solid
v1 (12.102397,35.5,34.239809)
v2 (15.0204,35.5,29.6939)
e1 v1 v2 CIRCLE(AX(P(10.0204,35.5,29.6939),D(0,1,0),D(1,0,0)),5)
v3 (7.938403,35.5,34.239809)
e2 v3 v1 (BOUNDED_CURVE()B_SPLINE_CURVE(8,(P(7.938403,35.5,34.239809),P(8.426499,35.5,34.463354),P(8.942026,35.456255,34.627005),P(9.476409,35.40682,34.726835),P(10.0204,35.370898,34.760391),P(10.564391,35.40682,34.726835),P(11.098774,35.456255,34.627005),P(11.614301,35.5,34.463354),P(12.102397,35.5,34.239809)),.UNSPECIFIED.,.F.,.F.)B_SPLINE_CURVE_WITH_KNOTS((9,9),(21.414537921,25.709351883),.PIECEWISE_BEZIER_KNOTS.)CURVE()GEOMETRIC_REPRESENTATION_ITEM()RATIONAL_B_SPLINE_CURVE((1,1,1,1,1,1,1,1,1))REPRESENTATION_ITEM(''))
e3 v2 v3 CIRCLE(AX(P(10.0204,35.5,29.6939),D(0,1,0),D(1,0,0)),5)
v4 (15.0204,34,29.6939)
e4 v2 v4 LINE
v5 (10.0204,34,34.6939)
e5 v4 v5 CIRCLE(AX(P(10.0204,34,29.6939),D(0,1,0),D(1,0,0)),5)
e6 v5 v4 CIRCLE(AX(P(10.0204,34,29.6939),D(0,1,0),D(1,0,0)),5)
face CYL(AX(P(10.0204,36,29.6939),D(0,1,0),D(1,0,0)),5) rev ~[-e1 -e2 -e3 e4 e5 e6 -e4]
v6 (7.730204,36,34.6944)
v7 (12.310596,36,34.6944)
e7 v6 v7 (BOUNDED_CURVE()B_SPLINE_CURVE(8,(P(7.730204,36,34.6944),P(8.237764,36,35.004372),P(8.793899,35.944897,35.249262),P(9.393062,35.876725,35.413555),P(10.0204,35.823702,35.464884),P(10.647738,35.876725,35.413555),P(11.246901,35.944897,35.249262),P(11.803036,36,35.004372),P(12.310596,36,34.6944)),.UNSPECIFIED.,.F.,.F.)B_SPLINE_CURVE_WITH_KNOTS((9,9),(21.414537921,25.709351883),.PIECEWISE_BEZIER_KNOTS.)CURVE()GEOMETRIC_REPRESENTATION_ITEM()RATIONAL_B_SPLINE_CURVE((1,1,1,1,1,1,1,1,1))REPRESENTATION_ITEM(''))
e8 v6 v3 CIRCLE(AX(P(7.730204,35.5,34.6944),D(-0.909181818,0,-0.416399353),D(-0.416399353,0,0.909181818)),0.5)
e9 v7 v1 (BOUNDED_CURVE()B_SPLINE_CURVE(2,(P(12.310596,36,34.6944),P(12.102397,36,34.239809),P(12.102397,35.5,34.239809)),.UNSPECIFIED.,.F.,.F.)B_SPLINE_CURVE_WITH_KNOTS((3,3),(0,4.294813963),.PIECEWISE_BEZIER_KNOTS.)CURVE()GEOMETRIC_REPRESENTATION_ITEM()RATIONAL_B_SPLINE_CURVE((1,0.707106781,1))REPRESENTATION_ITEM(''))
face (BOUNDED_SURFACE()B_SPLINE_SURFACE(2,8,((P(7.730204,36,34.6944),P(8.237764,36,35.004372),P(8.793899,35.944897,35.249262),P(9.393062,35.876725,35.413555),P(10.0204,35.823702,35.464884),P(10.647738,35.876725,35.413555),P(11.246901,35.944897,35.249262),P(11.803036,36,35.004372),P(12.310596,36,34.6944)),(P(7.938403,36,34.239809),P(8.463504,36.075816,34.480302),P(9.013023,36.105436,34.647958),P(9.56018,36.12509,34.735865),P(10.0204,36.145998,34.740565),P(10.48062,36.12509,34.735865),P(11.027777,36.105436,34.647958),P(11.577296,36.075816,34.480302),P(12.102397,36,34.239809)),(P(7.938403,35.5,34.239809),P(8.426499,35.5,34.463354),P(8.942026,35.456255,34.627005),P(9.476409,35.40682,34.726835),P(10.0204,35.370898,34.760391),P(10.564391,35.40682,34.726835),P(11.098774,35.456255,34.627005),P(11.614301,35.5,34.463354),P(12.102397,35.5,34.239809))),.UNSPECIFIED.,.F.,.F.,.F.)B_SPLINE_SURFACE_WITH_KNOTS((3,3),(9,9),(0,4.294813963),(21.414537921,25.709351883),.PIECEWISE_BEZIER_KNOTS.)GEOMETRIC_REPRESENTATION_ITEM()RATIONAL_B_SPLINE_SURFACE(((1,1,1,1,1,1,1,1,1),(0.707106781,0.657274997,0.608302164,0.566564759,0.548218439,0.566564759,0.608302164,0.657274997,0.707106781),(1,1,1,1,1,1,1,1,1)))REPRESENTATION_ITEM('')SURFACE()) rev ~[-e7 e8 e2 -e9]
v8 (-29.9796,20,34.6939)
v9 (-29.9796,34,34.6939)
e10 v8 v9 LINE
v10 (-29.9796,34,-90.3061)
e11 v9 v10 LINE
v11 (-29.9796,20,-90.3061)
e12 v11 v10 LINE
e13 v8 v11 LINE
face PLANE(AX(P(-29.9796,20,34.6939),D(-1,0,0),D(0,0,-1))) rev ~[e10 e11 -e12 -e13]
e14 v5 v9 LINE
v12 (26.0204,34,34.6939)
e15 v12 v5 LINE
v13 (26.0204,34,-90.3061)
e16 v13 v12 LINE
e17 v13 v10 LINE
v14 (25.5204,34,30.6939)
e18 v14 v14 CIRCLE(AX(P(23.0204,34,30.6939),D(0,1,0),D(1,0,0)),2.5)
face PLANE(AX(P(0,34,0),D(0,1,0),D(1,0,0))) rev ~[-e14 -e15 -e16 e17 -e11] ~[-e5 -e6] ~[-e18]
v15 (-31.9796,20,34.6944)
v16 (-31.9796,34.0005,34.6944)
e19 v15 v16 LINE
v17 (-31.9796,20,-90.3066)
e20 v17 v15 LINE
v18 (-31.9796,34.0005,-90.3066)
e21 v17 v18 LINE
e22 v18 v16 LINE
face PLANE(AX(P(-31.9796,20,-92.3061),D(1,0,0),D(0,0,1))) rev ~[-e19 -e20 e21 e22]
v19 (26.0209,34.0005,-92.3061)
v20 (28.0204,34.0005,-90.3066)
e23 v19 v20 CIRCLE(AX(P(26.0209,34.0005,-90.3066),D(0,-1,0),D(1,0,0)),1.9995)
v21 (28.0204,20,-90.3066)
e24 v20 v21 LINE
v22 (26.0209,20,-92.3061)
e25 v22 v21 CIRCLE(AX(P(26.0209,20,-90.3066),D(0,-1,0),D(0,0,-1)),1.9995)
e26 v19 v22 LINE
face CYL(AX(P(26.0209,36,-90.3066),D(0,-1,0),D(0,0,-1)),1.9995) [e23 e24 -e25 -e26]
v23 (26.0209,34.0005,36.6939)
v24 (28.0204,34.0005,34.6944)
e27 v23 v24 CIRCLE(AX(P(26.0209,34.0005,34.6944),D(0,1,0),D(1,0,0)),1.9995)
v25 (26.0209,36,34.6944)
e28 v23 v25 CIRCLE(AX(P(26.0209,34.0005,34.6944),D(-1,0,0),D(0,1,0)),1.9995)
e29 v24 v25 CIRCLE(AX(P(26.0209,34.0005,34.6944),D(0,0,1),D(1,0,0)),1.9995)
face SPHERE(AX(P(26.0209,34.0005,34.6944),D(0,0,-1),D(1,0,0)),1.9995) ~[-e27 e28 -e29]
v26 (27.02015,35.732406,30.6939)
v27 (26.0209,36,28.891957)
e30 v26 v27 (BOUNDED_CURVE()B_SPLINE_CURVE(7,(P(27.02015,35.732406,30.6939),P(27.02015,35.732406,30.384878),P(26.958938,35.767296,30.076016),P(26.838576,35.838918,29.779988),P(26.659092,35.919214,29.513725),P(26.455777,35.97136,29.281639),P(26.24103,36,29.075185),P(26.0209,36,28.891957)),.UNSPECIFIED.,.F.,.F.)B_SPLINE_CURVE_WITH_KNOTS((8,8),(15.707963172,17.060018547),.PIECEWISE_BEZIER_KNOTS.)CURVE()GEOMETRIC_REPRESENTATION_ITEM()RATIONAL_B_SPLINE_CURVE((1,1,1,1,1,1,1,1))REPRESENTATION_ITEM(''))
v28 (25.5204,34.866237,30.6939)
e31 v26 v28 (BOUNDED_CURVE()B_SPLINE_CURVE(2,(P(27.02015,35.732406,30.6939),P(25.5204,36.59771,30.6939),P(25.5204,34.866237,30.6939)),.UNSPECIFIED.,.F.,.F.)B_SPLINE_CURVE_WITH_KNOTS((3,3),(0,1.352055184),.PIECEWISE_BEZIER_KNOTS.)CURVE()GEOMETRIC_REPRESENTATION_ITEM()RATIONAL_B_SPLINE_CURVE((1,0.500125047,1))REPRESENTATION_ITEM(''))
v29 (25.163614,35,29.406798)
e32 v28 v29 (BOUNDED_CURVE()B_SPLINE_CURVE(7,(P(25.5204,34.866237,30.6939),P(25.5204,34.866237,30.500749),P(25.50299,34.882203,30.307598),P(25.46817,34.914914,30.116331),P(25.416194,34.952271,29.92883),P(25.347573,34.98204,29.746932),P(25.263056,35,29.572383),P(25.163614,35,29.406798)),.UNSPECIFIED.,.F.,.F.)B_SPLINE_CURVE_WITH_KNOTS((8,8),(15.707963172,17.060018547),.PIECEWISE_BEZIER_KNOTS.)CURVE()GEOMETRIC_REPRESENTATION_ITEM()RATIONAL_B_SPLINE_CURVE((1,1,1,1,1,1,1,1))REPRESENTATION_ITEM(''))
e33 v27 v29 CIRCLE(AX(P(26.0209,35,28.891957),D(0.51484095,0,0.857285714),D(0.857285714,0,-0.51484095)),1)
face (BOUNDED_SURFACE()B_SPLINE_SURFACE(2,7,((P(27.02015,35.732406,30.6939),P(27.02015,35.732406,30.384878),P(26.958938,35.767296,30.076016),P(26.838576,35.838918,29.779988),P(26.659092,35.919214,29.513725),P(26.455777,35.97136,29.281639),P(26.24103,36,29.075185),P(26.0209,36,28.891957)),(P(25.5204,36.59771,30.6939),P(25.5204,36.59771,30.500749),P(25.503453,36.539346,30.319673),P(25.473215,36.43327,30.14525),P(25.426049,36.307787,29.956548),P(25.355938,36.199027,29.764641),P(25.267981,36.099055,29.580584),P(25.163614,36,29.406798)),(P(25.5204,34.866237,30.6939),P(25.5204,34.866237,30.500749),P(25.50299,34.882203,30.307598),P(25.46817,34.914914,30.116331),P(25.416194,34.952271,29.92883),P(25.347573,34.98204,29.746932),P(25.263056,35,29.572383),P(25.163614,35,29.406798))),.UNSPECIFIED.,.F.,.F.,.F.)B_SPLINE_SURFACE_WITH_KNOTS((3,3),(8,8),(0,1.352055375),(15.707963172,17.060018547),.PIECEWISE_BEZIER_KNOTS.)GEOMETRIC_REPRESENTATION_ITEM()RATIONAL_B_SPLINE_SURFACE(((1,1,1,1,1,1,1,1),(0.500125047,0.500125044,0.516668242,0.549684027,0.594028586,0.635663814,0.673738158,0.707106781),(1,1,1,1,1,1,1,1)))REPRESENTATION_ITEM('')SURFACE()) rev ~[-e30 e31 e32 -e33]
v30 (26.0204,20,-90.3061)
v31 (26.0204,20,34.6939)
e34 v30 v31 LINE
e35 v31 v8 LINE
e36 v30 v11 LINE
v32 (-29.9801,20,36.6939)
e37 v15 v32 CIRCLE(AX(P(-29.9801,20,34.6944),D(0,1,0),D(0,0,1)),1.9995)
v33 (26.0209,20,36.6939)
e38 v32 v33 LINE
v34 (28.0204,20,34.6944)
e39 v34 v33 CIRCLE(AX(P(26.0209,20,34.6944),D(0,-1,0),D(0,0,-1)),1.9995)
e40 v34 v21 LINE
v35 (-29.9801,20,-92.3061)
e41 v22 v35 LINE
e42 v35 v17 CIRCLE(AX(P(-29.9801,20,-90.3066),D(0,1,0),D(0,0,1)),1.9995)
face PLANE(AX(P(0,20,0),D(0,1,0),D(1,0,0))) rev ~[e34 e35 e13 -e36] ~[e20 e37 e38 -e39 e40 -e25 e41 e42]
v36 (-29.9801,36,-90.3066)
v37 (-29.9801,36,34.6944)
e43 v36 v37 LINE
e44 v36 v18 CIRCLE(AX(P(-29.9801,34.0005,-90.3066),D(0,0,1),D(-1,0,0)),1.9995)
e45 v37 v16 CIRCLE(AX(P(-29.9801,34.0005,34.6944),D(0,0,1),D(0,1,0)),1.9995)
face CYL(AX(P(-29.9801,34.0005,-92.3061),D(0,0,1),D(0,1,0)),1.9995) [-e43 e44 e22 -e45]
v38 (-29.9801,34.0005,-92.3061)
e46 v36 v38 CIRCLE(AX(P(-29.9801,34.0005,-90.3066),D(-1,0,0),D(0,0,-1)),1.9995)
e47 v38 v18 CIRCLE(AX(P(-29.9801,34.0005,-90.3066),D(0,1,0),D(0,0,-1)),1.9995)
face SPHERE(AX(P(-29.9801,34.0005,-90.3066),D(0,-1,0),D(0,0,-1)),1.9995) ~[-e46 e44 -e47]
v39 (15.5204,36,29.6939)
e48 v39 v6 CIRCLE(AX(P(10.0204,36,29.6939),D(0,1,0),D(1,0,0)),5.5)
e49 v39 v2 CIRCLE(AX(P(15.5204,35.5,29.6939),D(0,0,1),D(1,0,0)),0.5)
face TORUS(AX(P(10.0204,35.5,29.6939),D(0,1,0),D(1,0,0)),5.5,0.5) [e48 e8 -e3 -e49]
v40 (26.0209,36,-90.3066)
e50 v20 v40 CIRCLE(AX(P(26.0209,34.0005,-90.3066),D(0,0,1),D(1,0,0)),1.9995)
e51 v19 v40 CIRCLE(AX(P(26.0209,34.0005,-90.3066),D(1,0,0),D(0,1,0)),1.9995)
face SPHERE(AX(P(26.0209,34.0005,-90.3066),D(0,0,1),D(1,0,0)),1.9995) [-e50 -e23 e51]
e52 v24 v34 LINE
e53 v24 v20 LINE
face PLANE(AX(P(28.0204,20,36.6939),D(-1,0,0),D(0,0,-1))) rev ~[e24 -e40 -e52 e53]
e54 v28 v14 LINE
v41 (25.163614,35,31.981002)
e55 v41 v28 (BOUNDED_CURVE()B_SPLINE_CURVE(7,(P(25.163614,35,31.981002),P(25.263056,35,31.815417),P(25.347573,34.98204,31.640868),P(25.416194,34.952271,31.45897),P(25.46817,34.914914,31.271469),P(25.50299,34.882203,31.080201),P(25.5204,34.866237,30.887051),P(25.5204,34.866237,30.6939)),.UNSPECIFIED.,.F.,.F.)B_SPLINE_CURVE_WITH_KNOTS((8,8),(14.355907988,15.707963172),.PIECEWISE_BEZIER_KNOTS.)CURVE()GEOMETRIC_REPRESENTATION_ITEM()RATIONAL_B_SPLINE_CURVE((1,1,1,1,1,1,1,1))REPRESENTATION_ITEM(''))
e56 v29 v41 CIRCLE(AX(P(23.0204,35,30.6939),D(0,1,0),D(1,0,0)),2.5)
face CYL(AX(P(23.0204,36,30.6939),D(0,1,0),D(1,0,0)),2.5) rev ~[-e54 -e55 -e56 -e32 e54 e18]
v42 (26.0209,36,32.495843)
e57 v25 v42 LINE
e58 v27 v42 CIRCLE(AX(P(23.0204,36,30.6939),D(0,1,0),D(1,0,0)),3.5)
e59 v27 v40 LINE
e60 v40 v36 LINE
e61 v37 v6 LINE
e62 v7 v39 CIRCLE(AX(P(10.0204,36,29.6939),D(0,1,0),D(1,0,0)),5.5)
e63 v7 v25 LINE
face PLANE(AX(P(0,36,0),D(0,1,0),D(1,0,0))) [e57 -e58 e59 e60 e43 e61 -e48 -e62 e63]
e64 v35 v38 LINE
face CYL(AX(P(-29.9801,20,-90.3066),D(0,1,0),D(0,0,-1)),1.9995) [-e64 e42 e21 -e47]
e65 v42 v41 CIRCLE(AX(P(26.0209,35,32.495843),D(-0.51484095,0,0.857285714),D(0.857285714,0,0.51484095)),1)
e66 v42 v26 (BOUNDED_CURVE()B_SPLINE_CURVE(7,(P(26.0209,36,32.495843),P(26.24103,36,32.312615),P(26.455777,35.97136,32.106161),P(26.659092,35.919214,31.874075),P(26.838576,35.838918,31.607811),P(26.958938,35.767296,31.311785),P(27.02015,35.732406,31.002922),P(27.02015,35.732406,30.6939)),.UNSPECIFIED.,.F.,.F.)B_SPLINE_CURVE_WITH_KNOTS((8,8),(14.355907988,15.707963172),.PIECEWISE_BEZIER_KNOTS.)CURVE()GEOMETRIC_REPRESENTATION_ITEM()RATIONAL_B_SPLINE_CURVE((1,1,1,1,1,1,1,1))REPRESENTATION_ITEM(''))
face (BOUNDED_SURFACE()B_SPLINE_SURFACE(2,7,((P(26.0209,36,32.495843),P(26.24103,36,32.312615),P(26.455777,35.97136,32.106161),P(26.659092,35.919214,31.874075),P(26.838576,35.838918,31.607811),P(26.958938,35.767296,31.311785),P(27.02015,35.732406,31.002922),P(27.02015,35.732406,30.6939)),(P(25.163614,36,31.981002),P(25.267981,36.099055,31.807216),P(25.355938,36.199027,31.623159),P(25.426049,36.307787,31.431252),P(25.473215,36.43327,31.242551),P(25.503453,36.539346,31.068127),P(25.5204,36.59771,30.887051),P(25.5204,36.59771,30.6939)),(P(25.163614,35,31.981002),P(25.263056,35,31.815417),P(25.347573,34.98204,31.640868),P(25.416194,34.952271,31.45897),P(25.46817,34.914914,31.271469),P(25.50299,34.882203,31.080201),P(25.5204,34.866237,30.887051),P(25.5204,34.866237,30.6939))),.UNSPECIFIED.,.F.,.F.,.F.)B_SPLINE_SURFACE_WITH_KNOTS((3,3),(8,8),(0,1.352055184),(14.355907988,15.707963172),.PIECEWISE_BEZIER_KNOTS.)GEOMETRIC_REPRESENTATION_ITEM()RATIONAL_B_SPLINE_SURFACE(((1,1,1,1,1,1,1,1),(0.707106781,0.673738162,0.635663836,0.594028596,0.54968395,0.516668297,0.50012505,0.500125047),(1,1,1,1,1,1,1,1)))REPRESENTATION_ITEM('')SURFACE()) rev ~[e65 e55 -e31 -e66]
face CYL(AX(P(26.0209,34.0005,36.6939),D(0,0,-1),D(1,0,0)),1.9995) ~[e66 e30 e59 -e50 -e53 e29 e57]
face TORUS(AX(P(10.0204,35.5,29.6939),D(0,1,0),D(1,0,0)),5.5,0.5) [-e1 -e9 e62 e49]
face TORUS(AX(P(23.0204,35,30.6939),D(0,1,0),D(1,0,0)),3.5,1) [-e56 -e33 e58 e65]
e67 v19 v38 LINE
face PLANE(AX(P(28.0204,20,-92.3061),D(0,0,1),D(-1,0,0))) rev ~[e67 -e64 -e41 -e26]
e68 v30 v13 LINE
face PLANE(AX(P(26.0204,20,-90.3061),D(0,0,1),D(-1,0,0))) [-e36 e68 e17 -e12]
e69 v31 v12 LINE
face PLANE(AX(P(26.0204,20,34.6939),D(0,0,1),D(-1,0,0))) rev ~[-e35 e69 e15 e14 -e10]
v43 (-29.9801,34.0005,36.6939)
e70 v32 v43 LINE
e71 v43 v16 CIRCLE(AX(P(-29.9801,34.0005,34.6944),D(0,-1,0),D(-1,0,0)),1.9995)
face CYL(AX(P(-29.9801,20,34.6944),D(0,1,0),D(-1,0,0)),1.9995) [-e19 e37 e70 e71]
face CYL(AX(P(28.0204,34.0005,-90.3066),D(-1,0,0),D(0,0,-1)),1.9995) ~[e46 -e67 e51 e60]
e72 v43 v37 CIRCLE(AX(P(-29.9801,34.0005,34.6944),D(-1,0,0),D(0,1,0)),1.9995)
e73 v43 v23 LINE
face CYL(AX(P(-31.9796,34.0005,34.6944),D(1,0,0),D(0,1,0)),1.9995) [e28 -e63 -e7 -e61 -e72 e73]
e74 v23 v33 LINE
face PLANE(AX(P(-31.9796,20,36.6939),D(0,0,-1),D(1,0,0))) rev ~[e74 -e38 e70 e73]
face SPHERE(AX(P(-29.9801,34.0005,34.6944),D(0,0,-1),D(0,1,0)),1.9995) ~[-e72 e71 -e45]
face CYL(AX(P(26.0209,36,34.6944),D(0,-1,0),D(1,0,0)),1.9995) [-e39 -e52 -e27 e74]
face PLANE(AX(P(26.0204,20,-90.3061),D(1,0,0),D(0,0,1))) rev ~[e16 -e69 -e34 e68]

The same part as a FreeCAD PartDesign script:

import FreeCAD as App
import Part
import Sketcher
Q = App.Units.Quantity


def edges_at(feature, points):
    """Names of the edges that pass closest to the given points."""
    edges = feature.Shape.Edges
    near = lambda p: min(range(len(edges)), key=lambda i: edges[i].distToShape(Part.Vertex(*p))[0])
    return sorted({f"Edge{near(p) + 1}" for p in points})


def add_polygon(sketch, points):
    """Adds a closed chain of lines whose ends are joined by coincident constraints."""
    first, n = sketch.GeometryCount, len(points)
    for a, b in zip(points, points[1:] + points[:1]):
        sketch.addGeometry(Part.LineSegment(App.Vector(*a, 0), App.Vector(*b, 0)), False)
    for i in range(n):
        sketch.addConstraint(Sketcher.Constraint("Coincident", first + i, 2, first + (i + 1) % n, 1))

doc = App.newDocument("Part")
body = doc.addObject("PartDesign::Body", "Body")

# Sketch on XZ plane
sketch1 = doc.addObject("Sketcher::SketchObject", "Sketch")
body.addObject(sketch1)
sketch1.AttachmentSupport = (doc.XZ_Plane, [""])
sketch1.MapMode = "FlatFace"
sketch1.AttachmentOffset = App.Placement(App.Vector(0, 0, -20), App.Rotation())
add_polygon(sketch1, [(28, -92), (-32, -92), (-32, 37), (28, 37)])  # lines 0-3
add_polygon(sketch1, [(-30, -90), (26, -90), (26, 35), (-30, 35)])  # lines 4-7
sketch1.addConstraint(Sketcher.Constraint("Horizontal", 0))
sketch1.addConstraint(Sketcher.Constraint("Vertical", 1))
sketch1.addConstraint(Sketcher.Constraint("Horizontal", 2))
sketch1.addConstraint(Sketcher.Constraint("Vertical", 3))
sketch1.addConstraint(Sketcher.Constraint("Horizontal", 4))
sketch1.addConstraint(Sketcher.Constraint("Vertical", 5))
sketch1.addConstraint(Sketcher.Constraint("Horizontal", 6))
sketch1.addConstraint(Sketcher.Constraint("Vertical", 7))
sketch1.addConstraint(Sketcher.Constraint("DistanceX", 0, 2, 0, 1, Q("60 mm")))
sketch1.addConstraint(Sketcher.Constraint("DistanceX", 4, 1, 4, 2, Q("56 mm")))
sketch1.addConstraint(Sketcher.Constraint("DistanceY", 1, 1, 1, 2, Q("129 mm")))
sketch1.addConstraint(Sketcher.Constraint("DistanceY", 5, 1, 5, 2, Q("125 mm")))
sketch1.addConstraint(Sketcher.Constraint("DistanceX", 4, 2, 3, 2, Q("2 mm")))
sketch1.addConstraint(Sketcher.Constraint("DistanceY", 3, 2, 4, 2, Q("2 mm")))
sketch1.addConstraint(Sketcher.Constraint("DistanceY", 0, 2, -1, 1, Q("92.306 mm")))
sketch1.addConstraint(Sketcher.Constraint("DistanceX", 0, 2, -1, 1, Q("31.9796 mm")))
pad1 = doc.addObject("PartDesign::Pad", "Pad")
body.addObject(pad1)
pad1.Profile = sketch1
pad1.Length = 14
pad1.Reversed = True

# Sketch on XZ plane
sketch2 = doc.addObject("Sketcher::SketchObject", "Sketch001")
body.addObject(sketch2)
sketch2.AttachmentSupport = (doc.XZ_Plane, [""])
sketch2.MapMode = "FlatFace"
sketch2.AttachmentOffset = App.Placement(App.Vector(0, 0, -34), App.Rotation())
add_polygon(sketch2, [(28, -92), (-32, -92), (-32, 37), (28, 37)])  # lines 0-3
sketch2.addConstraint(Sketcher.Constraint("Horizontal", 0))
sketch2.addConstraint(Sketcher.Constraint("Vertical", 1))
sketch2.addConstraint(Sketcher.Constraint("Horizontal", 2))
sketch2.addConstraint(Sketcher.Constraint("Vertical", 3))
sketch2.addConstraint(Sketcher.Constraint("DistanceX", 0, 2, 0, 1, Q("60 mm")))
sketch2.addConstraint(Sketcher.Constraint("DistanceY", 1, 1, 1, 2, Q("129 mm")))
sketch2.addConstraint(Sketcher.Constraint("DistanceY", 0, 2, -1, 1, Q("92.306 mm")))
sketch2.addConstraint(Sketcher.Constraint("DistanceX", 0, 2, -1, 1, Q("31.9796 mm")))
pad2 = doc.addObject("PartDesign::Pad", "Pad001")
body.addObject(pad2)
pad2.Profile = sketch2
pad2.Length = 2
pad2.Reversed = True

# Sketch on XZ plane
sketch3 = doc.addObject("Sketcher::SketchObject", "Sketch002")
body.addObject(sketch3)
sketch3.AttachmentSupport = (doc.XZ_Plane, [""])
sketch3.MapMode = "FlatFace"
sketch3.AttachmentOffset = App.Placement(App.Vector(0, 0, -36), App.Rotation())
sketch3.addGeometry(Part.Circle(App.Vector(10, 30, 0), App.Vector(0, 0, 1), 5), False)
sketch3.addConstraint(Sketcher.Constraint("Diameter", 0, Q("10 mm")))
sketch3.addConstraint(Sketcher.Constraint("DistanceY", -1, 1, 0, 3, Q("29.694 mm")))
sketch3.addConstraint(Sketcher.Constraint("DistanceX", -1, 1, 0, 3, Q("10.0204 mm")))
pocket1 = doc.addObject("PartDesign::Pocket", "Pocket")
body.addObject(pocket1)
pocket1.Profile = sketch3
pocket1.Length = 3
pocket1.Reversed = True

# Sketch on XZ plane
sketch4 = doc.addObject("Sketcher::SketchObject", "Sketch003")
body.addObject(sketch4)
sketch4.AttachmentSupport = (doc.XZ_Plane, [""])
sketch4.MapMode = "FlatFace"
sketch4.AttachmentOffset = App.Placement(App.Vector(0, 0, -36), App.Rotation())
sketch4.addGeometry(Part.Circle(App.Vector(23, 30.7, 0), App.Vector(0, 0, 1), 2.5), False)
sketch4.addConstraint(Sketcher.Constraint("Diameter", 0, Q("5 mm")))
sketch4.addConstraint(Sketcher.Constraint("DistanceY", -1, 1, 0, 3, Q("30.694 mm")))
sketch4.addConstraint(Sketcher.Constraint("DistanceX", -1, 1, 0, 3, Q("23.0204 mm")))
pocket2 = doc.addObject("PartDesign::Pocket", "Pocket001")
body.addObject(pocket2)
pocket2.Profile = sketch4
pocket2.Length = 3
pocket2.Reversed = True
doc.recompute()

fillet = doc.addObject("PartDesign::Fillet", "Fillet")
body.addObject(fillet)
fillet.Base = (pocket2, edges_at(pocket2, [
    (28.02, 36, -27.806),
    (28.02, 28, -92.306),
    (28.02, 28, 36.694),
    (-31.98, 28, -92.306),
    (-1.98, 36, -92.306),
    (-31.98, 36, -27.806),
    (-1.98, 36, 36.694),
    (-31.98, 28, 36.694),
]))
fillet.Radius = 2
doc.recompute()

fillet2 = doc.addObject("PartDesign::Fillet", "Fillet001")
body.addObject(fillet2)
fillet2.Base = (fillet, edges_at(fillet, [(20.52, 36, 30.694)]))
fillet2.Radius = 1
doc.recompute()

fillet3 = doc.addObject("PartDesign::Fillet", "Fillet002")
body.addObject(fillet3)
fillet3.Base = (fillet2, edges_at(fillet2, [(5.02, 36, 29.694)]))
fillet3.Radius = 0.5

doc.recompute()
